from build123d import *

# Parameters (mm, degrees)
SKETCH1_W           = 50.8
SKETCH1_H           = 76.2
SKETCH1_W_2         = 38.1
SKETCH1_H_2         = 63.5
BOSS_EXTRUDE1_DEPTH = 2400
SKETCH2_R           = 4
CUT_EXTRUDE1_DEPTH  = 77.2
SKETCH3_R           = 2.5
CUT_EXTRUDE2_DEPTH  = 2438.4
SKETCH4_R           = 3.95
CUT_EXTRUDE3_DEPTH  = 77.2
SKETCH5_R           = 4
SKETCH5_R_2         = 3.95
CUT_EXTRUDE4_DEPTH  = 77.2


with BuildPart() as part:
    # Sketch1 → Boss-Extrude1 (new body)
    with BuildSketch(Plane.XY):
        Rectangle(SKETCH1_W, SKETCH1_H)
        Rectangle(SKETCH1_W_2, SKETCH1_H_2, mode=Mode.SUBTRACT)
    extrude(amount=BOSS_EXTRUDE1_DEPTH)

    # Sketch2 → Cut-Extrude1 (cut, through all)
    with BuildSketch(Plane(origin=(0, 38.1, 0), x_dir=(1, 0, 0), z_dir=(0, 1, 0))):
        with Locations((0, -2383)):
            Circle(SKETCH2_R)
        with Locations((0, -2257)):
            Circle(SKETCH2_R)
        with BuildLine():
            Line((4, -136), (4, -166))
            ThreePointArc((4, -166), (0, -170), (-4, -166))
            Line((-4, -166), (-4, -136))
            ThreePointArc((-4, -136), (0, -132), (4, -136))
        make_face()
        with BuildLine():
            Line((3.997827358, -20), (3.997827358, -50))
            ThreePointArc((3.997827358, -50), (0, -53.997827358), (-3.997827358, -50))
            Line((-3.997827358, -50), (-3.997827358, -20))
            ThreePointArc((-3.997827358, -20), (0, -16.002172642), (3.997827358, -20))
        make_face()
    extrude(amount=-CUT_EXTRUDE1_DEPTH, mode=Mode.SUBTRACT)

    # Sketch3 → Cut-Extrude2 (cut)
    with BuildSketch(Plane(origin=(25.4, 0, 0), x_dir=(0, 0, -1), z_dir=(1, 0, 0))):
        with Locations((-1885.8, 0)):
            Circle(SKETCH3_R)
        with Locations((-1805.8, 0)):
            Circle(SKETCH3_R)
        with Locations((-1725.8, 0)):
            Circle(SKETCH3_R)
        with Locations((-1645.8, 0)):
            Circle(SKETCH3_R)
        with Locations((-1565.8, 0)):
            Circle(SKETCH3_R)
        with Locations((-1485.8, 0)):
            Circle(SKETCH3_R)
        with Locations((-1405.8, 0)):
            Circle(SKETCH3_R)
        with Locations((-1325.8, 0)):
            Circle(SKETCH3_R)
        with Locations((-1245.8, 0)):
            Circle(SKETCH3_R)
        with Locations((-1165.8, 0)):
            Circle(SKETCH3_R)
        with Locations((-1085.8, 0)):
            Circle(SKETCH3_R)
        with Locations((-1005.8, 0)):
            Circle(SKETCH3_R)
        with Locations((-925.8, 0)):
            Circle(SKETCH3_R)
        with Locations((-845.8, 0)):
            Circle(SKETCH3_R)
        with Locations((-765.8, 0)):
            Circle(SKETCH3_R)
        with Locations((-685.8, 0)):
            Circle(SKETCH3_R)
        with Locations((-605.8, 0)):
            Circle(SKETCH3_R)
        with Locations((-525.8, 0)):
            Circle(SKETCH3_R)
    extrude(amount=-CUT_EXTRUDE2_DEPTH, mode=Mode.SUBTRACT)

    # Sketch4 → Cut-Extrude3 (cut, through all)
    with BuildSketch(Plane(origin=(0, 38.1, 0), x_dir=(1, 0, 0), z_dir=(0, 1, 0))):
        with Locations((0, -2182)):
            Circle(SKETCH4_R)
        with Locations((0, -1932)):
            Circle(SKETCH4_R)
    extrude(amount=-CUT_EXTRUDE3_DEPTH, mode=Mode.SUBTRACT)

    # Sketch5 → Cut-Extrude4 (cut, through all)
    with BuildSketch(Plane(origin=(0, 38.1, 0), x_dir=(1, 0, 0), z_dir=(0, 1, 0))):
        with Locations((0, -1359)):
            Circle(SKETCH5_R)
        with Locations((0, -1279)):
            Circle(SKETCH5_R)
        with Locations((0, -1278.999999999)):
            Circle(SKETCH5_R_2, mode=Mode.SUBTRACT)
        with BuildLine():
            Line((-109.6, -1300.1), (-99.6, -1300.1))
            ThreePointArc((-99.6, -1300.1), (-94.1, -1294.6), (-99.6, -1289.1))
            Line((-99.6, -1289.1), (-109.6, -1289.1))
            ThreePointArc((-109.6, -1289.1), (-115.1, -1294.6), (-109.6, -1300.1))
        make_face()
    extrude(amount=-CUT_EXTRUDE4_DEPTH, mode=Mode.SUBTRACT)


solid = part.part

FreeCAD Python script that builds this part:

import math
import FreeCAD as App
import Part
import Sketcher
from FreeCAD import Vector
Q = App.Units.Quantity

doc = App.newDocument("Part")
params = doc.addObject("Spreadsheet::Sheet", "Params")
for row, (alias, value) in enumerate([
    ("sketch1_width", "50.8 mm"),
    ("sketch1_width2", "38.1 mm"),
    ("sketch1_height", "76.2 mm"),
    ("sketch1_height2", "63.5 mm"),
    ("pad1_length", "2400 mm"),
    ("sketch2_diameter", "8 mm"),
    ("sketch2_height", "30 mm"),
    ("sketch3_diameter", "5 mm"),
    ("pocket2_length", "2438.4 mm"),
    ("sketch4_diameter", "7.9 mm"),
    ("sketch5_diameter", "8 mm"),
    ("sketch5_diameter2", "7.9 mm"),
    ("sketch5_radius", "5.5 mm"),
    ("sketch5_width", "10 mm"),
], start=1):
    params.set(f"A{row}", alias)
    params.set(f"B{row}", "=" + value)
    params.setAlias(f"B{row}", alias)

body = doc.addObject("PartDesign::Body", "Body")
body.AllowCompound = True

# Sketch on XY plane
sketch1 = body.newObject("Sketcher::SketchObject", "Sketch")
sketch1.AttachmentSupport = (doc.getObject("XY_Plane"), [""])
sketch1.MapMode = "FlatFace"
sketch1.addGeometry([
    Part.LineSegment(Vector(-25, 38, 0), Vector(-25, -38, 0)),  # 0
    Part.LineSegment(Vector(-25, -38, 0), Vector(25, -38, 0)),  # 1
    Part.LineSegment(Vector(25, -38, 0), Vector(25, 38, 0)),  # 2
    Part.LineSegment(Vector(25, 38, 0), Vector(-25, 38, 0)),  # 3
    Part.LineSegment(Vector(19, -32, 0), Vector(-19, -32, 0)),  # 4
    Part.LineSegment(Vector(-19, -32, 0), Vector(-19, 32, 0)),  # 5
    Part.LineSegment(Vector(-19, 32, 0), Vector(19, 32, 0)),  # 6
    Part.LineSegment(Vector(19, 32, 0), Vector(19, -32, 0)),  # 7
], False)
sketch1.addConstraint([
    Sketcher.Constraint("Coincident", 0, 2, 1, 1),
    Sketcher.Constraint("Coincident", 1, 2, 2, 1),
    Sketcher.Constraint("Coincident", 2, 2, 3, 1),
    Sketcher.Constraint("Coincident", 3, 2, 0, 1),
    Sketcher.Constraint("Coincident", 4, 2, 5, 1),
    Sketcher.Constraint("Coincident", 5, 2, 6, 1),
    Sketcher.Constraint("Coincident", 6, 2, 7, 1),
    Sketcher.Constraint("Coincident", 7, 2, 4, 1),
    Sketcher.Constraint("Vertical", 0),
    Sketcher.Constraint("Horizontal", 1),
    Sketcher.Constraint("Vertical", 2),
    Sketcher.Constraint("Horizontal", 3),
    Sketcher.Constraint("Horizontal", 4),
    Sketcher.Constraint("Vertical", 5),
    Sketcher.Constraint("Horizontal", 6),
    Sketcher.Constraint("Vertical", 7),
    Sketcher.Constraint("Symmetric", 0, 2, 2, 2, -1, 1),
    Sketcher.Constraint("Symmetric", 4, 2, 6, 2, -1, 1),
    Sketcher.Constraint("DistanceX", 1, 1, 1, 2, Q("50.8 mm")),
    Sketcher.Constraint("DistanceX", 4, 2, 4, 1, Q("38.1 mm")),
    Sketcher.Constraint("DistanceY", 0, 2, 0, 1, Q("76.2 mm")),
    Sketcher.Constraint("DistanceY", 5, 1, 5, 2, Q("63.5 mm")),
])
sketch1.setExpression("Constraints[18]", "Params.sketch1_width")
sketch1.setExpression("Constraints[19]", "Params.sketch1_width2")
sketch1.setExpression("Constraints[20]", "Params.sketch1_height")
sketch1.setExpression("Constraints[21]", "Params.sketch1_height2")
pad1 = body.newObject("PartDesign::Pad", "Pad")
pad1.Profile = sketch1
pad1.setExpression("Length", "Params.pad1_length")

# Sketch on XZ plane
sketch2 = body.newObject("Sketcher::SketchObject", "Sketch001")
sketch2.AttachmentSupport = (doc.getObject("XZ_Plane"), [""])
sketch2.MapMode = "FlatFace"
sketch2.AttachmentOffset = App.Placement(Vector(0, 0, -38.1), App.Rotation())
sketch2.addGeometry([
    Part.Circle(Vector(0, 2383, 0), Vector(0, 0, 1), 4),  # 0
    Part.Circle(Vector(0, 2257, 0), Vector(0, 0, 1), 4),  # 1
    Part.LineSegment(Vector(4, 166, 0), Vector(4, 136, 0)),  # 2
    Part.ArcOfCircle(Part.Circle(Vector(0, 136, 0), Vector(0, 0, 1), 4), math.radians(180), math.radians(360)),  # 3
    Part.LineSegment(Vector(-4, 136, 0), Vector(-4, 166, 0)),  # 4
    Part.ArcOfCircle(Part.Circle(Vector(0, 166, 0), Vector(0, 0, 1), 4), math.radians(0), math.radians(180)),  # 5
    Part.LineSegment(Vector(4, 50, 0), Vector(4, 20, 0)),  # 6
    Part.ArcOfCircle(Part.Circle(Vector(0, 20, 0), Vector(0, 0, 1), 4), math.radians(180), math.radians(360)),  # 7
    Part.LineSegment(Vector(-4, 20, 0), Vector(-4, 50, 0)),  # 8
    Part.ArcOfCircle(Part.Circle(Vector(0, 50, 0), Vector(0, 0, 1), 4), math.radians(0), math.radians(180)),  # 9
], False)
sketch2.addConstraint([
    Sketcher.Constraint("Tangent", 2, 2, 3, 2),
    Sketcher.Constraint("Tangent", 3, 1, 4, 1),
    Sketcher.Constraint("Tangent", 4, 2, 5, 2),
    Sketcher.Constraint("Tangent", 5, 1, 2, 1),
    Sketcher.Constraint("Tangent", 6, 2, 7, 2),
    Sketcher.Constraint("Tangent", 7, 1, 8, 1),
    Sketcher.Constraint("Tangent", 8, 2, 9, 2),
    Sketcher.Constraint("Tangent", 9, 1, 6, 1),
    Sketcher.Constraint("Vertical", 2),
    Sketcher.Constraint("Vertical", 4),
    Sketcher.Constraint("Vertical", 6),
    Sketcher.Constraint("Vertical", 8),
    Sketcher.Constraint("Equal", 0, 1),
    Sketcher.Constraint("Equal", 1, 3),
    Sketcher.Constraint("PointOnObject", 0, 3, -2),
    Sketcher.Constraint("PointOnObject", 1, 3, -2),
    Sketcher.Constraint("PointOnObject", 3, 3, -2),
    Sketcher.Constraint("PointOnObject", 7, 3, -2),
    Sketcher.Constraint("Equal", 4, 6),
    Sketcher.Constraint("Diameter", 0, Q("8 mm")),
    Sketcher.Constraint("DistanceY", 2, 2, 2, 1, Q("30 mm")),
    Sketcher.Constraint("DistanceY", -1, 1, 0, 3, Q("2383 mm")),
    Sketcher.Constraint("DistanceY", -1, 1, 1, 3, Q("2257 mm")),
    Sketcher.Constraint("DistanceY", -1, 1, 3, 3, Q("136 mm")),
    Sketcher.Constraint("DistanceY", -1, 1, 7, 3, Q("20 mm")),
    Sketcher.Constraint("Radius", 7, Q("3.997827 mm")),
])
sketch2.setExpression("Constraints[19]", "Params.sketch2_diameter")
sketch2.setExpression("Constraints[20]", "Params.sketch2_height")
pocket1 = body.newObject("PartDesign::Pocket", "Pocket")
pocket1.Profile = sketch2
pocket1.Type = "ThroughAll"
pocket1.Reversed = True

# Sketch on YZ plane
sketch3 = body.newObject("Sketcher::SketchObject", "Sketch002")
sketch3.AttachmentSupport = (doc.getObject("YZ_Plane"), [""])
sketch3.MapMode = "FlatFace"
sketch3.AttachmentOffset = App.Placement(Vector(0, 0, 25.4), App.Rotation())
sketch3.addGeometry([
    Part.Circle(Vector(0, 1885.8, 0), Vector(0, 0, 1), 2.5),  # 0
    Part.Circle(Vector(0, 1805.8, 0), Vector(0, 0, 1), 2.5),  # 1
    Part.Circle(Vector(0, 1725.8, 0), Vector(0, 0, 1), 2.5),  # 2
    Part.Circle(Vector(0, 1645.8, 0), Vector(0, 0, 1), 2.5),  # 3
    Part.Circle(Vector(0, 1565.8, 0), Vector(0, 0, 1), 2.5),  # 4
    Part.Circle(Vector(0, 1485.8, 0), Vector(0, 0, 1), 2.5),  # 5
    Part.Circle(Vector(0, 1405.8, 0), Vector(0, 0, 1), 2.5),  # 6
    Part.Circle(Vector(0, 1325.8, 0), Vector(0, 0, 1), 2.5),  # 7
    Part.Circle(Vector(0, 1245.8, 0), Vector(0, 0, 1), 2.5),  # 8
    Part.Circle(Vector(0, 1165.8, 0), Vector(0, 0, 1), 2.5),  # 9
    Part.Circle(Vector(0, 1085.8, 0), Vector(0, 0, 1), 2.5),  # 10
    Part.Circle(Vector(0, 1005.8, 0), Vector(0, 0, 1), 2.5),  # 11
    Part.Circle(Vector(0, 925.8, 0), Vector(0, 0, 1), 2.5),  # 12
    Part.Circle(Vector(0, 845.8, 0), Vector(0, 0, 1), 2.5),  # 13
    Part.Circle(Vector(0, 765.8, 0), Vector(0, 0, 1), 2.5),  # 14
    Part.Circle(Vector(0, 685.8, 0), Vector(0, 0, 1), 2.5),  # 15
    Part.Circle(Vector(0, 605.8, 0), Vector(0, 0, 1), 2.5),  # 16
    Part.Circle(Vector(0, 525.8, 0), Vector(0, 0, 1), 2.5),  # 17
], False)
sketch3.addConstraint([
    Sketcher.Constraint("Equal", 0, 1),
    Sketcher.Constraint("Equal", 1, 2),
    Sketcher.Constraint("Equal", 2, 3),
    Sketcher.Constraint("Equal", 3, 4),
    Sketcher.Constraint("Equal", 4, 5),
    Sketcher.Constraint("Equal", 5, 6),
    Sketcher.Constraint("Equal", 6, 7),
    Sketcher.Constraint("Equal", 7, 8),
    Sketcher.Constraint("Equal", 8, 9),
    Sketcher.Constraint("Equal", 9, 10),
    Sketcher.Constraint("Equal", 10, 11),
    Sketcher.Constraint("Equal", 11, 12),
    Sketcher.Constraint("Equal", 12, 13),
    Sketcher.Constraint("Equal", 13, 14),
    Sketcher.Constraint("Equal", 14, 15),
    Sketcher.Constraint("Equal", 15, 16),
    Sketcher.Constraint("Equal", 16, 17),
    Sketcher.Constraint("PointOnObject", 0, 3, -2),
    Sketcher.Constraint("PointOnObject", 1, 3, -2),
    Sketcher.Constraint("PointOnObject", 2, 3, -2),
    Sketcher.Constraint("PointOnObject", 3, 3, -2),
    Sketcher.Constraint("PointOnObject", 4, 3, -2),
    Sketcher.Constraint("PointOnObject", 5, 3, -2),
    Sketcher.Constraint("PointOnObject", 6, 3, -2),
    Sketcher.Constraint("PointOnObject", 7, 3, -2),
    Sketcher.Constraint("PointOnObject", 8, 3, -2),
    Sketcher.Constraint("PointOnObject", 9, 3, -2),
    Sketcher.Constraint("PointOnObject", 10, 3, -2),
    Sketcher.Constraint("PointOnObject", 11, 3, -2),
    Sketcher.Constraint("PointOnObject", 12, 3, -2),
    Sketcher.Constraint("PointOnObject", 13, 3, -2),
    Sketcher.Constraint("PointOnObject", 14, 3, -2),
    Sketcher.Constraint("PointOnObject", 15, 3, -2),
    Sketcher.Constraint("PointOnObject", 16, 3, -2),
    Sketcher.Constraint("PointOnObject", 17, 3, -2),
    Sketcher.Constraint("Diameter", 0, Q("5 mm")),
    Sketcher.Constraint("DistanceY", 1, 3, 0, 3, Q("80 mm")),
    Sketcher.Constraint("DistanceY", 2, 3, 1, 3, Q("80 mm")),
    Sketcher.Constraint("DistanceY", 3, 3, 2, 3, Q("80 mm")),
    Sketcher.Constraint("DistanceY", 4, 3, 3, 3, Q("80 mm")),
    Sketcher.Constraint("DistanceY", 5, 3, 4, 3, Q("80 mm")),
    Sketcher.Constraint("DistanceY", 6, 3, 5, 3, Q("80 mm")),
    Sketcher.Constraint("DistanceY", 7, 3, 6, 3, Q("80 mm")),
    Sketcher.Constraint("DistanceY", 8, 3, 7, 3, Q("80 mm")),
    Sketcher.Constraint("DistanceY", 9, 3, 8, 3, Q("80 mm")),
    Sketcher.Constraint("DistanceY", 10, 3, 9, 3, Q("80 mm")),
    Sketcher.Constraint("DistanceY", 11, 3, 10, 3, Q("80 mm")),
    Sketcher.Constraint("DistanceY", 12, 3, 11, 3, Q("80 mm")),
    Sketcher.Constraint("DistanceY", 13, 3, 12, 3, Q("80 mm")),
    Sketcher.Constraint("DistanceY", 14, 3, 13, 3, Q("80 mm")),
    Sketcher.Constraint("DistanceY", 15, 3, 14, 3, Q("80 mm")),
    Sketcher.Constraint("DistanceY", 16, 3, 15, 3, Q("80 mm")),
    Sketcher.Constraint("DistanceY", 17, 3, 16, 3, Q("80 mm")),
    Sketcher.Constraint("DistanceY", -1, 1, 0, 3, Q("1885.8 mm")),
])
sketch3.setExpression("Constraints[35]", "Params.sketch3_diameter")
pocket2 = body.newObject("PartDesign::Pocket", "Pocket001")
pocket2.Profile = sketch3
pocket2.setExpression("Length", "Params.pocket2_length")

# Sketch on XZ plane
sketch4 = body.newObject("Sketcher::SketchObject", "Sketch003")
sketch4.AttachmentSupport = (doc.getObject("XZ_Plane"), [""])
sketch4.MapMode = "FlatFace"
sketch4.AttachmentOffset = App.Placement(Vector(0, 0, -38.1), App.Rotation())
sketch4.addGeometry([
    Part.Circle(Vector(0, 2182, 0), Vector(0, 0, 1), 4),
    Part.Circle(Vector(0, 1932, 0), Vector(0, 0, 1), 4),
], False)
sketch4.addConstraint([
    Sketcher.Constraint("Equal", 0, 1),
    Sketcher.Constraint("PointOnObject", 0, 3, -2),
    Sketcher.Constraint("PointOnObject", 1, 3, -2),
    Sketcher.Constraint("Diameter", 0, Q("7.9 mm")),
    Sketcher.Constraint("DistanceY", -1, 1, 0, 3, Q("2182 mm")),
    Sketcher.Constraint("DistanceY", -1, 1, 1, 3, Q("1932 mm")),
])
sketch4.setExpression("Constraints[3]", "Params.sketch4_diameter")
pocket3 = body.newObject("PartDesign::Pocket", "Pocket002")
pocket3.Profile = sketch4
pocket3.Type = "ThroughAll"
pocket3.Reversed = True

# Sketch on XZ plane
sketch5 = body.newObject("Sketcher::SketchObject", "Sketch004")
sketch5.AttachmentSupport = (doc.getObject("XZ_Plane"), [""])
sketch5.MapMode = "FlatFace"
sketch5.AttachmentOffset = App.Placement(Vector(0, 0, -38.1), App.Rotation())
sketch5.addGeometry([
    Part.Circle(Vector(0, 1359, 0), Vector(0, 0, 1), 4),  # 0
    Part.Circle(Vector(0, 1279, 0), Vector(0, 0, 1), 4),  # 1
    Part.Circle(Vector(0, 1279, 0), Vector(0, 0, 1), 4),  # 2
    Part.LineSegment(Vector(-109.6, 1300.1, 0), Vector(-99.6, 1300.1, 0)),  # 3
    Part.ArcOfCircle(Part.Circle(Vector(-99.6, 1294.6, 0), Vector(0, 0, 1), 5.5), math.radians(-90), math.radians(90)),  # 4
    Part.LineSegment(Vector(-99.6, 1289.1, 0), Vector(-109.6, 1289.1, 0)),  # 5
    Part.ArcOfCircle(Part.Circle(Vector(-109.6, 1294.6, 0), Vector(0, 0, 1), 5.5), math.radians(90), math.radians(270)),  # 6
], False)
sketch5.addConstraint([
    Sketcher.Constraint("Tangent", 3, 2, 4, 2),
    Sketcher.Constraint("Tangent", 4, 1, 5, 1),
    Sketcher.Constraint("Tangent", 5, 2, 6, 2),
    Sketcher.Constraint("Tangent", 6, 1, 3, 1),
    Sketcher.Constraint("Horizontal", 3),
    Sketcher.Constraint("Horizontal", 5),
    Sketcher.Constraint("Coincident", 2, 3, 1, 3),
    Sketcher.Constraint("Equal", 0, 1),
    Sketcher.Constraint("PointOnObject", 0, 3, -2),
    Sketcher.Constraint("PointOnObject", 1, 3, -2),
    Sketcher.Constraint("Diameter", 0, Q("8 mm")),
    Sketcher.Constraint("Diameter", 2, Q("7.9 mm")),
    Sketcher.Constraint("Radius", 4, Q("5.5 mm")),
    Sketcher.Constraint("DistanceX", 3, 1, 3, 2, Q("10 mm")),
    Sketcher.Constraint("DistanceY", -1, 1, 0, 3, Q("1359 mm")),
    Sketcher.Constraint("DistanceY", -1, 1, 1, 3, Q("1279 mm")),
    Sketcher.Constraint("DistanceX", 4, 3, -1, 1, Q("99.6 mm")),
    Sketcher.Constraint("DistanceY", -1, 1, 4, 3, Q("1294.6 mm")),
])
sketch5.setExpression("Constraints[10]", "Params.sketch5_diameter")
sketch5.setExpression("Constraints[11]", "Params.sketch5_diameter2")
sketch5.setExpression("Constraints[12]", "Params.sketch5_radius")
sketch5.setExpression("Constraints[13]", "Params.sketch5_width")
pocket4 = body.newObject("PartDesign::Pocket", "Pocket003")
pocket4.Profile = sketch5
pocket4.Type = "ThroughAll"
pocket4.Reversed = True

doc.recompute()
